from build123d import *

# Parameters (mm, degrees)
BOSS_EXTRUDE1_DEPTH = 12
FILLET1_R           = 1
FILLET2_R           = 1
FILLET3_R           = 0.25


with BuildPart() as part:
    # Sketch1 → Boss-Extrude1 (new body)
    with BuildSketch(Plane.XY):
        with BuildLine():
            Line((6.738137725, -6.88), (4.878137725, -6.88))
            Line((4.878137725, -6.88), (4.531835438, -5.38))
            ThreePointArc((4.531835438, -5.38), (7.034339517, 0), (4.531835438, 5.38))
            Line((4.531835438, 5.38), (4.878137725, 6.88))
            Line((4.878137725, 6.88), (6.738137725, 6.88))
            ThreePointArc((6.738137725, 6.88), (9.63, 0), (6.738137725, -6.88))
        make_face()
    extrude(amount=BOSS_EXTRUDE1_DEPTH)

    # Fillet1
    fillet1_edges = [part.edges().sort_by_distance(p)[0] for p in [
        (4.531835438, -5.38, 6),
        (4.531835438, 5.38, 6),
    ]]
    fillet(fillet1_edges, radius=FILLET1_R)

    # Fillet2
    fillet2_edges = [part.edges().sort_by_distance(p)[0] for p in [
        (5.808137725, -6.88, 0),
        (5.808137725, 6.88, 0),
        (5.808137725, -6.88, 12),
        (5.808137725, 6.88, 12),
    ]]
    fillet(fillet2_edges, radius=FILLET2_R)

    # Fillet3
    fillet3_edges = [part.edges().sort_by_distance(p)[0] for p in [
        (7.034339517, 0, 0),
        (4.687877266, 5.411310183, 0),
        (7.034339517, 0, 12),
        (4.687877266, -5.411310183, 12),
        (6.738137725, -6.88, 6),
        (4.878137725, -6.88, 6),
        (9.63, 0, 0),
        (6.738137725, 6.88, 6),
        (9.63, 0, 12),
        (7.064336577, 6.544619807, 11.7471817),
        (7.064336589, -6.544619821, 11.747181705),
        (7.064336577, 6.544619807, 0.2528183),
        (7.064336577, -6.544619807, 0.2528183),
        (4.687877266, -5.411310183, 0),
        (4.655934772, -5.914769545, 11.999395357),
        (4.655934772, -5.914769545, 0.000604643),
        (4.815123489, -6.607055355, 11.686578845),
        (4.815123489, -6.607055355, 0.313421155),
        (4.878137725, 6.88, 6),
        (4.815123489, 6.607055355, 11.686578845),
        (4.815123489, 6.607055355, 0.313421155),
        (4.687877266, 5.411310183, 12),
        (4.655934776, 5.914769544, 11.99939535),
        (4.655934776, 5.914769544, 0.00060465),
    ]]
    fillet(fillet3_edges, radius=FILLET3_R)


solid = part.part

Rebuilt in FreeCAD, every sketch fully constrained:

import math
import FreeCAD as App
import Part
import Sketcher

V = App.Vector
Q = App.Units.Quantity


def edges_at(feature, points):
    """Names of the edges that pass closest to the given points."""
    edges = feature.Shape.Edges
    near = lambda p: min(range(len(edges)), key=lambda i: edges[i].distToShape(Part.Vertex(*p))[0])
    return sorted({f"Edge{near(p) + 1}" for p in points})

doc = App.newDocument("Part")
body = doc.addObject("PartDesign::Body", "Body")

sketch1 = body.newObject("Sketcher::SketchObject", "Sketch")
sketch1.AttachmentSupport = (doc.getObject("XY_Plane"), [""])
sketch1.MapMode = "FlatFace"
sketch1.addGeometry(Part.LineSegment(V(4.9, -6.9, 0), V(6.7, -6.9, 0)), False)
sketch1.addGeometry(Part.ArcOfCircle(Part.Circle(V(0, 0, 0), V(0, 0, 1), 9.6), math.radians(-46), math.radians(46)), False)
sketch1.addGeometry(Part.LineSegment(V(6.7, 6.9, 0), V(4.9, 6.9, 0)), False)
sketch1.addGeometry(Part.LineSegment(V(4.9, 6.9, 0), V(4.5, 5.4, 0)), False)
sketch1.addGeometry(Part.ArcOfCircle(Part.Circle(V(0, 0, 0), V(0, 0, 1), 7), math.radians(-50), math.radians(50)), False)
sketch1.addGeometry(Part.LineSegment(V(4.5, -5.4, 0), V(4.9, -6.9, 0)), False)
sketch1.addConstraint(Sketcher.Constraint("Coincident", 0, 2, 1, 1))
sketch1.addConstraint(Sketcher.Constraint("Coincident", 1, 2, 2, 1))
sketch1.addConstraint(Sketcher.Constraint("Coincident", 2, 2, 3, 1))
sketch1.addConstraint(Sketcher.Constraint("Coincident", 3, 2, 4, 2))
sketch1.addConstraint(Sketcher.Constraint("Coincident", 4, 1, 5, 1))
sketch1.addConstraint(Sketcher.Constraint("Coincident", 5, 2, 0, 1))
sketch1.addConstraint(Sketcher.Constraint("Horizontal", 0))
sketch1.addConstraint(Sketcher.Constraint("Horizontal", 2))
sketch1.addConstraint(Sketcher.Constraint("Coincident", 1, 3, -1, 1))
sketch1.addConstraint(Sketcher.Constraint("Coincident", 4, 3, -1, 1))
sketch1.addConstraint(Sketcher.Constraint("Symmetric", 2, 2, 5, 2, -1))
sketch1.addConstraint(Sketcher.Constraint("Vertical", 3, 2, 4, 1))
sketch1.addConstraint(Sketcher.Constraint("Angle", 3, Q("-103 deg")))
sketch1.addConstraint(Sketcher.Constraint("Radius", 1, Q("9.63 mm")))
sketch1.addConstraint(Sketcher.Constraint("DistanceX", 0, 1, 0, 2, Q("1.86 mm")))
sketch1.addConstraint(Sketcher.Constraint("DistanceY", 3, 2, 2, 2, Q("1.5 mm")))
sketch1.addConstraint(Sketcher.Constraint("DistanceY", 0, 2, -1, 1, Q("6.88 mm")))
pad1 = body.newObject("PartDesign::Pad", "Pad")
pad1.Profile = sketch1
pad1.Length = 12
doc.recompute()

fillet = body.newObject("PartDesign::Fillet", "Fillet")
fillet.Base = (pad1, edges_at(pad1, [(4.532, -5.38, 6), (4.532, 5.38, 6)]))
fillet.Radius = 1
doc.recompute()

fillet2 = body.newObject("PartDesign::Fillet", "Fillet001")
fillet2.Base = (fillet, edges_at(fillet, [
    (5.808, -6.88, 0),
    (5.808, 6.88, 0),
    (5.808, -6.88, 12),
    (5.808, 6.88, 12),
]))
fillet2.Radius = 1
doc.recompute()

fillet3 = body.newObject("PartDesign::Fillet", "Fillet002")
fillet3.Base = (fillet2, edges_at(fillet2, [
    (7.034, 0, 0),
    (4.688, 5.411, 0),
    (7.034, 0, 12),
    (4.688, -5.411, 12),
    (6.738, -6.88, 6),
    (4.878, -6.88, 6),
    (9.63, 0, 0),
    (6.738, 6.88, 6),
    (9.63, 0, 12),
    (7.064, 6.545, 11.747),
    (7.064, -6.545, 11.747),
    (7.064, 6.545, 0.253),
    (7.064, -6.545, 0.253),
    (4.688, -5.411, 0),
    (4.656, -5.915, 11.999),
    (4.656, -5.915, 0.001),
    (4.815, -6.607, 11.687),
    (4.815, -6.607, 0.313),
    (4.878, 6.88, 6),
    (4.815, 6.607, 11.687),
    (4.815, 6.607, 0.313),
    (4.688, 5.411, 12),
    (4.656, 5.915, 11.999),
    (4.656, 5.915, 0.001),
]))
fillet3.Radius = 0.25

doc.recompute()
